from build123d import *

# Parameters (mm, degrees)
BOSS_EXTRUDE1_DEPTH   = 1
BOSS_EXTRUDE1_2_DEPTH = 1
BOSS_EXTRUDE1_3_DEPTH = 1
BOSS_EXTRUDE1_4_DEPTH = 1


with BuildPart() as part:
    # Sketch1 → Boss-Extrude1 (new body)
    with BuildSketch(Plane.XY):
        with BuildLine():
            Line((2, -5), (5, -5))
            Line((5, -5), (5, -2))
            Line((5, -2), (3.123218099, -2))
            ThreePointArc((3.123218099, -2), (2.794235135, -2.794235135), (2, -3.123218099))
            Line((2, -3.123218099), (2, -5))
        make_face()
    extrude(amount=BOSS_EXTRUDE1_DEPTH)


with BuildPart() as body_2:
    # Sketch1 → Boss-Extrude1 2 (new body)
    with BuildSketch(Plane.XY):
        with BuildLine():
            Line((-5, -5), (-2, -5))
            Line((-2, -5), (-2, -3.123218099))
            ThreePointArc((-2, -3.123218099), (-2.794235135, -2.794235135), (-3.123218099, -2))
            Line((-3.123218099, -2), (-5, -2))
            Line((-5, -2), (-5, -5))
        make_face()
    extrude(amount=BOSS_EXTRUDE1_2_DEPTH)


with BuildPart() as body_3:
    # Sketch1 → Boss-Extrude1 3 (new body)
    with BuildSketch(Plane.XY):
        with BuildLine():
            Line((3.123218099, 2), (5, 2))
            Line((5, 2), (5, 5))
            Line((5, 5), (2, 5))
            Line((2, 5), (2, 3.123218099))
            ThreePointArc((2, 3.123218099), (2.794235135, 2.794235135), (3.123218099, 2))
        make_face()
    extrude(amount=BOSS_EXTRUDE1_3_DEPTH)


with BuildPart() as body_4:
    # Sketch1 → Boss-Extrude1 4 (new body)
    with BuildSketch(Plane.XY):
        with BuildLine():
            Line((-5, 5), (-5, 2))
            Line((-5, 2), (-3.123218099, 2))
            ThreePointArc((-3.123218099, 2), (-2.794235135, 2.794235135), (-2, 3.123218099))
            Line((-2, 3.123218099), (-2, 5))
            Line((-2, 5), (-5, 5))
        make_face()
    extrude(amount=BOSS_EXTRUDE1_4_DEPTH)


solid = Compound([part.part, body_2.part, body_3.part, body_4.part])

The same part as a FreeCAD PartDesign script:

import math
import FreeCAD as App
import Part
import Sketcher

doc = App.newDocument("Part")
body = doc.addObject("PartDesign::Body", "Body")

# Sketch on XY plane
sketch1 = body.newObject("Sketcher::SketchObject", "Sketch")
sketch1.AttachmentSupport = (doc.getObject("XY_Plane"), [""])
sketch1.MapMode = "FlatFace"
sketch1.addGeometry([
    Part.LineSegment(App.Vector(2, -5, 0), App.Vector(5, -5, 0)),  # 0
    Part.LineSegment(App.Vector(5, -5, 0), App.Vector(5, -2, 0)),  # 1
    Part.LineSegment(App.Vector(5, -2, 0), App.Vector(3.1, -2, 0)),  # 2
    Part.ArcOfCircle(Part.Circle(App.Vector(2, -2, 0), App.Vector(0, 0, 1), 1.1), math.radians(-90), math.radians(0)),  # 3
    Part.LineSegment(App.Vector(2, -3.1, 0), App.Vector(2, -5, 0)),  # 4
], False)
sketch1.addConstraint([
    Sketcher.Constraint("Coincident", 0, 2, 1, 1),
    Sketcher.Constraint("Coincident", 1, 2, 2, 1),
    Sketcher.Constraint("Coincident", 2, 2, 3, 2),
    Sketcher.Constraint("Coincident", 3, 1, 4, 1),
    Sketcher.Constraint("Coincident", 4, 2, 0, 1),
    Sketcher.Constraint("Horizontal", 0),
    Sketcher.Constraint("Vertical", 1),
    Sketcher.Constraint("Horizontal", 2),
    Sketcher.Constraint("Vertical", 4),
    Sketcher.Constraint("Horizontal", 3, 3, 1, 2),
    Sketcher.Constraint("Equal", 0, 1),
    Sketcher.Constraint("Equal", 2, 4),
    Sketcher.Constraint("DistanceX", 0, 1, 0, 2, 3.0),
    Sketcher.Constraint("DistanceX", -1, 1, 3, 3, 2.0),
    Sketcher.Constraint("DistanceY", 3, 3, -1, 1, 2.0),
    Sketcher.Constraint("Radius", 3, 1.123218),
])
pad1 = body.newObject("PartDesign::Pad", "Pad")
pad1.Profile = sketch1
pad1.Length = 1
body2 = doc.addObject("PartDesign::Body", "Body001")

# Sketch on XY plane
sketch2 = body2.newObject("Sketcher::SketchObject", "Sketch001")
sketch2.AttachmentSupport = (doc.getObject("XY_Plane001"), [""])
sketch2.MapMode = "FlatFace"
sketch2.addGeometry([
    Part.LineSegment(App.Vector(-5, -5, 0), App.Vector(-2, -5, 0)),  # 0
    Part.LineSegment(App.Vector(-2, -5, 0), App.Vector(-2, -3.1, 0)),  # 1
    Part.ArcOfCircle(Part.Circle(App.Vector(-2, -2, 0), App.Vector(0, 0, 1), 1.1), math.radians(180), math.radians(270)),  # 2
    Part.LineSegment(App.Vector(-3.1, -2, 0), App.Vector(-5, -2, 0)),  # 3
    Part.LineSegment(App.Vector(-5, -2, 0), App.Vector(-5, -5, 0)),  # 4
], False)
sketch2.addConstraint([
    Sketcher.Constraint("Coincident", 0, 2, 1, 1),
    Sketcher.Constraint("Coincident", 1, 2, 2, 2),
    Sketcher.Constraint("Coincident", 2, 1, 3, 1),
    Sketcher.Constraint("Coincident", 3, 2, 4, 1),
    Sketcher.Constraint("Coincident", 4, 2, 0, 1),
    Sketcher.Constraint("Horizontal", 0),
    Sketcher.Constraint("Vertical", 1),
    Sketcher.Constraint("Horizontal", 3),
    Sketcher.Constraint("Vertical", 4),
    Sketcher.Constraint("Vertical", 2, 3, 0, 2),
    Sketcher.Constraint("Equal", 3, 1),
    Sketcher.Constraint("Equal", 0, 4),
    Sketcher.Constraint("DistanceX", 0, 1, 0, 2, 3.0),
    Sketcher.Constraint("DistanceX", 2, 3, -1, 1, 2.0),
    Sketcher.Constraint("DistanceY", 2, 3, -1, 1, 2.0),
    Sketcher.Constraint("Radius", 2, 1.123218),
])
pad2 = body2.newObject("PartDesign::Pad", "Pad001")
pad2.Profile = sketch2
pad2.Length = 1
body3 = doc.addObject("PartDesign::Body", "Body002")

# Sketch on XY plane
sketch3 = body3.newObject("Sketcher::SketchObject", "Sketch002")
sketch3.AttachmentSupport = (doc.getObject("XY_Plane002"), [""])
sketch3.MapMode = "FlatFace"
sketch3.addGeometry([
    Part.LineSegment(App.Vector(3.1, 2, 0), App.Vector(5, 2, 0)),  # 0
    Part.LineSegment(App.Vector(5, 2, 0), App.Vector(5, 5, 0)),  # 1
    Part.LineSegment(App.Vector(5, 5, 0), App.Vector(2, 5, 0)),  # 2
    Part.LineSegment(App.Vector(2, 5, 0), App.Vector(2, 3.1, 0)),  # 3
    Part.ArcOfCircle(Part.Circle(App.Vector(2, 2, 0), App.Vector(0, 0, 1), 1.1), math.radians(0), math.radians(90)),  # 4
], False)
sketch3.addConstraint([
    Sketcher.Constraint("Coincident", 0, 2, 1, 1),
    Sketcher.Constraint("Coincident", 1, 2, 2, 1),
    Sketcher.Constraint("Coincident", 2, 2, 3, 1),
    Sketcher.Constraint("Coincident", 3, 2, 4, 2),
    Sketcher.Constraint("Coincident", 4, 1, 0, 1),
    Sketcher.Constraint("Horizontal", 0),
    Sketcher.Constraint("Vertical", 1),
    Sketcher.Constraint("Horizontal", 2),
    Sketcher.Constraint("Vertical", 3),
    Sketcher.Constraint("Horizontal", 4, 3, 0, 2),
    Sketcher.Constraint("Vertical", 4, 3, 2, 2),
    Sketcher.Constraint("Equal", 2, 1),
    Sketcher.Constraint("DistanceX", 2, 2, 2, 1, 3.0),
    Sketcher.Constraint("DistanceX", -1, 1, 4, 3, 2.0),
    Sketcher.Constraint("DistanceY", -1, 1, 4, 3, 2.0),
    Sketcher.Constraint("Radius", 4, 1.123218),
])
pad3 = body3.newObject("PartDesign::Pad", "Pad002")
pad3.Profile = sketch3
pad3.Length = 1
body4 = doc.addObject("PartDesign::Body", "Body003")

# Sketch on XY plane
sketch4 = body4.newObject("Sketcher::SketchObject", "Sketch003")
sketch4.AttachmentSupport = (doc.getObject("XY_Plane003"), [""])
sketch4.MapMode = "FlatFace"
sketch4.addGeometry([
    Part.LineSegment(App.Vector(-5, 5, 0), App.Vector(-5, 2, 0)),  # 0
    Part.LineSegment(App.Vector(-5, 2, 0), App.Vector(-3.1, 2, 0)),  # 1
    Part.ArcOfCircle(Part.Circle(App.Vector(-2, 2, 0), App.Vector(0, 0, 1), 1.1), math.radians(90), math.radians(180)),  # 2
    Part.LineSegment(App.Vector(-2, 3.1, 0), App.Vector(-2, 5, 0)),  # 3
    Part.LineSegment(App.Vector(-2, 5, 0), App.Vector(-5, 5, 0)),  # 4
], False)
sketch4.addConstraint([
    Sketcher.Constraint("Coincident", 0, 2, 1, 1),
    Sketcher.Constraint("Coincident", 1, 2, 2, 2),
    Sketcher.Constraint("Coincident", 2, 1, 3, 1),
    Sketcher.Constraint("Coincident", 3, 2, 4, 1),
    Sketcher.Constraint("Coincident", 4, 2, 0, 1),
    Sketcher.Constraint("Vertical", 0),
    Sketcher.Constraint("Horizontal", 1),
    Sketcher.Constraint("Vertical", 3),
    Sketcher.Constraint("Horizontal", 4),
    Sketcher.Constraint("Horizontal", 2, 3, 0, 2),
    Sketcher.Constraint("Equal", 4, 0),
    Sketcher.Constraint("Equal", 1, 3),
    Sketcher.Constraint("DistanceX", 4, 2, 4, 1, 3.0),
    Sketcher.Constraint("DistanceX", 2, 3, -1, 1, 2.0),
    Sketcher.Constraint("DistanceY", -1, 1, 2, 3, 2.0),
    Sketcher.Constraint("Radius", 2, 1.123218),
])
pad4 = body4.newObject("PartDesign::Pad", "Pad003")
pad4.Profile = sketch4
pad4.Length = 1

doc.recompute()
